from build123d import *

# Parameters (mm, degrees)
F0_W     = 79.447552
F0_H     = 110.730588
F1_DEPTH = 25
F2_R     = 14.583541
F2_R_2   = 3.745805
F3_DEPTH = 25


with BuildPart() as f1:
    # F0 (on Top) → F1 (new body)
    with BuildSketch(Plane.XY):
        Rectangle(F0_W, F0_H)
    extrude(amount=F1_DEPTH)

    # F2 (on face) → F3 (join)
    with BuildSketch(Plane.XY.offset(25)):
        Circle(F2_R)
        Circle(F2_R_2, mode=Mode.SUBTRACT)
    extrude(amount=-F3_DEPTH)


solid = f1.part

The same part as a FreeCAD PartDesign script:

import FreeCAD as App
import Part
import Sketcher

V = App.Vector


def add_polygon(sketch, points):
    """Adds a closed chain of lines whose ends are joined by coincident constraints."""
    first, n = sketch.GeometryCount, len(points)
    for a, b in zip(points, points[1:] + points[:1]):
        sketch.addGeometry(Part.LineSegment(App.Vector(*a, 0), App.Vector(*b, 0)), False)
    for i in range(n):
        sketch.addConstraint(Sketcher.Constraint("Coincident", first + i, 2, first + (i + 1) % n, 1))

doc = App.newDocument("Part")
body = doc.addObject("PartDesign::Body", "Body")

# Sketch on XY plane
sketch1 = body.newObject("Sketcher::SketchObject", "Sketch")
sketch1.AttachmentSupport = (doc.getObject("XY_Plane"), [""])
sketch1.MapMode = "FlatFace"
add_polygon(sketch1, [(-40, 55), (-40, -55), (40, -55), (40, 55)])  # lines 0-3
sketch1.addConstraint([
    Sketcher.Constraint("Vertical", 0),
    Sketcher.Constraint("Horizontal", 1),
    Sketcher.Constraint("Vertical", 2),
    Sketcher.Constraint("Horizontal", 3),
    Sketcher.Constraint("Symmetric", 0, 2, 2, 2, -1, 1),
    Sketcher.Constraint("DistanceX", 1, 1, 1, 2, 79.447552),
    Sketcher.Constraint("DistanceY", 0, 2, 0, 1, 110.730588),
])
pad1 = body.newObject("PartDesign::Pad", "Pad")
pad1.Profile = sketch1
pad1.Length = 25

# Sketch on XY plane
sketch2 = body.newObject("Sketcher::SketchObject", "Sketch001")
sketch2.AttachmentSupport = (doc.getObject("XY_Plane"), [""])
sketch2.MapMode = "FlatFace"
sketch2.AttachmentOffset = App.Placement(V(0, 0, 25), App.Rotation())
sketch2.addGeometry([
    Part.Circle(V(0, 0, 0), V(0, 0, 1), 14.6),
    Part.Circle(V(0, 0, 0), V(0, 0, 1), 3.7),
], False)
sketch2.addConstraint([
    Sketcher.Constraint("Coincident", 0, 3, -1, 1),
    Sketcher.Constraint("Coincident", 1, 3, -1, 1),
    Sketcher.Constraint("Diameter", 1, 7.49161),
    Sketcher.Constraint("Diameter", 0, 29.167082),
])
pad2 = body.newObject("PartDesign::Pad", "Pad001")
pad2.Profile = sketch2
pad2.Length = 25
pad2.Reversed = True

doc.recompute()
